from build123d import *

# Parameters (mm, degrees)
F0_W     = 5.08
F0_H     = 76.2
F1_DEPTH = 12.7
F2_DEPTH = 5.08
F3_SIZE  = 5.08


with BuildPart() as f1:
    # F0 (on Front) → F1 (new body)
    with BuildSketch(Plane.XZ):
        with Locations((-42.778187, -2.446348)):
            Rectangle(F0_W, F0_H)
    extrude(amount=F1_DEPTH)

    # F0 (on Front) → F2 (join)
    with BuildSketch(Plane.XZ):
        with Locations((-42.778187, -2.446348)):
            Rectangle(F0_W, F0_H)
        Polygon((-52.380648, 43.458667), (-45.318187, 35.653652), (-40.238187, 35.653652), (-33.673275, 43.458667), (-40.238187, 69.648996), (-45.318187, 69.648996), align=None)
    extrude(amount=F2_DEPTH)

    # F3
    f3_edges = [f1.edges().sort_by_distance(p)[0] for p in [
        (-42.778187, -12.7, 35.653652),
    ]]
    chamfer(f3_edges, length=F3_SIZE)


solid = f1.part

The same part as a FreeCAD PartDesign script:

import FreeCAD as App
import Part
import Sketcher

V = App.Vector
Q = App.Units.Quantity


def edges_at(feature, points):
    """Names of the edges that pass closest to the given points."""
    edges = feature.Shape.Edges
    near = lambda p: min(range(len(edges)), key=lambda i: edges[i].distToShape(Part.Vertex(*p))[0])
    return sorted({f"Edge{near(p) + 1}" for p in points})

doc = App.newDocument("Part")
params = doc.addObject("Spreadsheet::Sheet", "Params")
for row, (alias, value) in enumerate([
    ("sketch1_height", "3 in"),
    ("sketch1_width", "0.2 in"),
    ("pad1_length", "0.5 in"),
    ("sketch2_height", "3 in"),
    ("sketch2_width", "0.2 in"),
    ("pad2_length", "0.2 in"),
    ("chamfer_size", "0.2 in"),
], start=1):
    params.set(f"A{row}", alias)
    params.set(f"B{row}", "=" + value)
    params.setAlias(f"B{row}", alias)

body = doc.addObject("PartDesign::Body", "Body")

# Sketch on XZ plane
sketch1 = doc.addObject("Sketcher::SketchObject", "Sketch")
body.addObject(sketch1)
sketch1.AttachmentSupport = (doc.XZ_Plane, [""])
sketch1.MapMode = "FlatFace"
sketch1.addGeometry(Part.LineSegment(V(-45, 36, 0), V(-45, -41, 0)), False)
sketch1.addGeometry(Part.LineSegment(V(-45, -41, 0), V(-40, -41, 0)), False)
sketch1.addGeometry(Part.LineSegment(V(-40, -41, 0), V(-40, 36, 0)), False)
sketch1.addGeometry(Part.LineSegment(V(-40, 36, 0), V(-45, 36, 0)), False)
sketch1.addConstraint(Sketcher.Constraint("Coincident", 0, 2, 1, 1))
sketch1.addConstraint(Sketcher.Constraint("Coincident", 1, 2, 2, 1))
sketch1.addConstraint(Sketcher.Constraint("Coincident", 2, 2, 3, 1))
sketch1.addConstraint(Sketcher.Constraint("Coincident", 3, 2, 0, 1))
sketch1.addConstraint(Sketcher.Constraint("Vertical", 0))
sketch1.addConstraint(Sketcher.Constraint("Horizontal", 1))
sketch1.addConstraint(Sketcher.Constraint("Vertical", 2))
sketch1.addConstraint(Sketcher.Constraint("Horizontal", 3))
sketch1.addConstraint(Sketcher.Constraint("DistanceY", 0, 2, 0, 1, Q("3 in")))
sketch1.addConstraint(Sketcher.Constraint("DistanceX", 1, 1, 1, 2, Q("0.2 in")))
sketch1.addConstraint(Sketcher.Constraint("DistanceY", 0, 2, -1, 1, 40.546348))
sketch1.addConstraint(Sketcher.Constraint("DistanceX", 0, 2, -1, 1, 45.318187))
sketch1.setExpression("Constraints[8]", "Params.sketch1_height")
sketch1.setExpression("Constraints[9]", "Params.sketch1_width")
pad1 = doc.addObject("PartDesign::Pad", "Pad")
body.addObject(pad1)
pad1.Profile = sketch1
pad1.setExpression("Length", "Params.pad1_length")

# Sketch on XZ plane
sketch2 = doc.addObject("Sketcher::SketchObject", "Sketch001")
body.addObject(sketch2)
sketch2.AttachmentSupport = (doc.XZ_Plane, [""])
sketch2.MapMode = "FlatFace"
sketch2.addGeometry(Part.LineSegment(V(-45, 36, 0), V(-45, -41, 0)), False)
sketch2.addGeometry(Part.LineSegment(V(-45, -41, 0), V(-40, -41, 0)), False)
sketch2.addGeometry(Part.LineSegment(V(-40, -41, 0), V(-40, 36, 0)), False)
sketch2.addGeometry(Part.LineSegment(V(-40, 36, 0), V(-34, 43, 0)), False)
sketch2.addGeometry(Part.LineSegment(V(-34, 43, 0), V(-40, 70, 0)), False)
sketch2.addGeometry(Part.LineSegment(V(-40, 70, 0), V(-45, 70, 0)), False)
sketch2.addGeometry(Part.LineSegment(V(-45, 70, 0), V(-52, 43, 0)), False)
sketch2.addGeometry(Part.LineSegment(V(-52, 43, 0), V(-45, 36, 0)), False)
sketch2.addConstraint(Sketcher.Constraint("Coincident", 0, 2, 1, 1))
sketch2.addConstraint(Sketcher.Constraint("Coincident", 1, 2, 2, 1))
sketch2.addConstraint(Sketcher.Constraint("Coincident", 2, 2, 3, 1))
sketch2.addConstraint(Sketcher.Constraint("Coincident", 3, 2, 4, 1))
sketch2.addConstraint(Sketcher.Constraint("Coincident", 4, 2, 5, 1))
sketch2.addConstraint(Sketcher.Constraint("Coincident", 5, 2, 6, 1))
sketch2.addConstraint(Sketcher.Constraint("Coincident", 6, 2, 7, 1))
sketch2.addConstraint(Sketcher.Constraint("Coincident", 7, 2, 0, 1))
sketch2.addConstraint(Sketcher.Constraint("Vertical", 0))
sketch2.addConstraint(Sketcher.Constraint("Horizontal", 1))
sketch2.addConstraint(Sketcher.Constraint("Vertical", 2))
sketch2.addConstraint(Sketcher.Constraint("Horizontal", 5))
sketch2.addConstraint(Sketcher.Constraint("Horizontal", 3, 2, 6, 2))
sketch2.addConstraint(Sketcher.Constraint("Horizontal", 2, 2, 7, 2))
sketch2.addConstraint(Sketcher.Constraint("Vertical", 2, 2, 4, 2))
sketch2.addConstraint(Sketcher.Constraint("Vertical", 0, 2, 5, 2))
sketch2.addConstraint(Sketcher.Constraint("DistanceY", 0, 2, 0, 1, Q("3 in")))
sketch2.addConstraint(Sketcher.Constraint("DistanceX", 1, 1, 1, 2, Q("0.2 in")))
sketch2.addConstraint(Sketcher.Constraint("Distance", 3, 10.19884))
sketch2.addConstraint(Sketcher.Constraint("Distance", 4, 27.000582))
sketch2.addConstraint(Sketcher.Constraint("Distance", 6, 27.125849))
sketch2.addConstraint(Sketcher.Constraint("DistanceY", 0, 2, -1, 1, 40.546348))
sketch2.addConstraint(Sketcher.Constraint("DistanceY", 3, 2, 4, 2, 26.190329))
sketch2.addConstraint(Sketcher.Constraint("DistanceX", 0, 2, -1, 1, 45.318187))
sketch2.setExpression("Constraints[16]", "Params.sketch2_height")
sketch2.setExpression("Constraints[17]", "Params.sketch2_width")
pad2 = doc.addObject("PartDesign::Pad", "Pad001")
body.addObject(pad2)
pad2.Profile = sketch2
pad2.setExpression("Length", "Params.pad2_length")
doc.recompute()

chamfer = doc.addObject("PartDesign::Chamfer", "Chamfer")
body.addObject(chamfer)
chamfer.Base = (pad2, edges_at(pad2, [(-42.778, -12.7, 35.654)]))
chamfer.setExpression("Size", "Params.chamfer_size")

doc.recompute()
